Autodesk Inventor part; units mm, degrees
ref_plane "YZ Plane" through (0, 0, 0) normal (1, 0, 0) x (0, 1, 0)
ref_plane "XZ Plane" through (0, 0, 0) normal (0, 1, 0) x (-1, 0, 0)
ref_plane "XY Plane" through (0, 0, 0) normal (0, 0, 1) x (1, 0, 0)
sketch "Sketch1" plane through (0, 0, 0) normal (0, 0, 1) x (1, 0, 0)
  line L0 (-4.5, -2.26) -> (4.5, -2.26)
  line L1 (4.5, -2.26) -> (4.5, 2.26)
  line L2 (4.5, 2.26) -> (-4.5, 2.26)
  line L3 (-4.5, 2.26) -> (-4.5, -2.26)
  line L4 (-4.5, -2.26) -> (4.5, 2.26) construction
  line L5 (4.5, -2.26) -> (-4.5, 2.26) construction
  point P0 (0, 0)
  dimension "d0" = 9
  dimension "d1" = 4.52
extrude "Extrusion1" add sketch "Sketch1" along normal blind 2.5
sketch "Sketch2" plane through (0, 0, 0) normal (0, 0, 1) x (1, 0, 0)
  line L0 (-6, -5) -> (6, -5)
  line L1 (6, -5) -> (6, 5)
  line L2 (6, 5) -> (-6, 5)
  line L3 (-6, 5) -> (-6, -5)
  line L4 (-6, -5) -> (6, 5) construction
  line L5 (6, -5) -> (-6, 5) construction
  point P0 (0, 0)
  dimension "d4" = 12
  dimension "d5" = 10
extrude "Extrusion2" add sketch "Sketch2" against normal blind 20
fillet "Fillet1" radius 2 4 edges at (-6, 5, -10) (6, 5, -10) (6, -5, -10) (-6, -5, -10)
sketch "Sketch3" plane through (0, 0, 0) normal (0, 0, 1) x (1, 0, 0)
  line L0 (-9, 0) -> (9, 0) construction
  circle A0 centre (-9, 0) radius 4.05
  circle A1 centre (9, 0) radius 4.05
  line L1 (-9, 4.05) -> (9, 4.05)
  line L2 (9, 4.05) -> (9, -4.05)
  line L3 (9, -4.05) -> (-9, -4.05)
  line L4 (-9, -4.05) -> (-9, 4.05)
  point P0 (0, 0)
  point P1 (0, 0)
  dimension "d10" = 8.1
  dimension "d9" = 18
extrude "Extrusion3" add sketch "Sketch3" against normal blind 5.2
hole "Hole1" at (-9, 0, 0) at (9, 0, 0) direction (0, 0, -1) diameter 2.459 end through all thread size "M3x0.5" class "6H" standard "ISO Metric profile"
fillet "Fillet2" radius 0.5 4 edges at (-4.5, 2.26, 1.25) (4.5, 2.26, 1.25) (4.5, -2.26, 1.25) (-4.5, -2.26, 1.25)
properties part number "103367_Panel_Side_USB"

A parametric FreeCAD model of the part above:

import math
import FreeCAD as App
import Part
import Sketcher
Q = App.Units.Quantity


def edges_at(feature, points):
    """Names of the edges that pass closest to the given points."""
    edges = feature.Shape.Edges
    near = lambda p: min(range(len(edges)), key=lambda i: edges[i].distToShape(Part.Vertex(*p))[0])
    return sorted({f"Edge{near(p) + 1}" for p in points})


def add_polygon(sketch, points):
    """Adds a closed chain of lines whose ends are joined by coincident constraints."""
    first, n = sketch.GeometryCount, len(points)
    for a, b in zip(points, points[1:] + points[:1]):
        sketch.addGeometry(Part.LineSegment(App.Vector(*a, 0), App.Vector(*b, 0)), False)
    for i in range(n):
        sketch.addConstraint(Sketcher.Constraint("Coincident", first + i, 2, first + (i + 1) % n, 1))

doc = App.newDocument("Part")
body = doc.addObject("PartDesign::Body", "Body")

sketch1 = doc.addObject("Sketcher::SketchObject", "Sketch")
body.addObject(sketch1)
sketch1.AttachmentSupport = (doc.XY_Plane, [""])
sketch1.MapMode = "FlatFace"
add_polygon(sketch1, [(-4.5, 2.26), (-4.5, -2.26), (4.5, -2.26), (4.5, 2.26)])
sketch1.addConstraint([
    Sketcher.Constraint("Vertical", 0),
    Sketcher.Constraint("Horizontal", 1),
    Sketcher.Constraint("Vertical", 2),
    Sketcher.Constraint("Horizontal", 3),
    Sketcher.Constraint("Symmetric", 0, 2, 2, 2, -1, 1),
    Sketcher.Constraint("DistanceX", 1, 1, 1, 2, Q("9 mm")),
    Sketcher.Constraint("DistanceY", 0, 2, 0, 1, Q("4.52 mm")),
])
pad1 = doc.addObject("PartDesign::Pad", "Pad")
body.addObject(pad1)
pad1.Profile = sketch1
pad1.Length = 2.5

sketch2 = doc.addObject("Sketcher::SketchObject", "Sketch001")
body.addObject(sketch2)
sketch2.AttachmentSupport = (doc.XY_Plane, [""])
sketch2.MapMode = "FlatFace"
add_polygon(sketch2, [(-6, 5), (-6, -5), (6, -5), (6, 5)])
sketch2.addConstraint([
    Sketcher.Constraint("Vertical", 0),
    Sketcher.Constraint("Horizontal", 1),
    Sketcher.Constraint("Vertical", 2),
    Sketcher.Constraint("Horizontal", 3),
    Sketcher.Constraint("Symmetric", 0, 2, 2, 2, -1, 1),
    Sketcher.Constraint("DistanceX", 1, 1, 1, 2, Q("12 mm")),
    Sketcher.Constraint("DistanceY", 0, 2, 0, 1, Q("10 mm")),
])
pad2 = doc.addObject("PartDesign::Pad", "Pad001")
body.addObject(pad2)
pad2.Profile = sketch2
pad2.Length = 20
pad2.Reversed = True
doc.recompute()

fillet = doc.addObject("PartDesign::Fillet", "Fillet")
body.addObject(fillet)
fillet.Base = (pad2, edges_at(pad2, [
    (-6, 5, -10),
    (6, 5, -10),
    (6, -5, -10),
    (-6, -5, -10),
]))
fillet.Radius = 2

sketch3 = doc.addObject("Sketcher::SketchObject", "Sketch002")
body.addObject(sketch3)
sketch3.AttachmentSupport = (doc.XY_Plane, [""])
sketch3.MapMode = "FlatFace"
sketch3.addGeometry([
    Part.LineSegment(App.Vector(-9, -4.05, 0), App.Vector(9, -4.05, 0)),
    Part.ArcOfCircle(Part.Circle(App.Vector(9, 0, 0), App.Vector(0, 0, 1), 4.05), math.radians(-90), math.radians(90)),
    Part.LineSegment(App.Vector(9, 4.05, 0), App.Vector(-9, 4.05, 0)),
    Part.ArcOfCircle(Part.Circle(App.Vector(-9, 0, 0), App.Vector(0, 0, 1), 4.05), math.radians(90), math.radians(270)),
], False)
sketch3.addConstraint([
    Sketcher.Constraint("Tangent", 0, 2, 1, 1),
    Sketcher.Constraint("Tangent", 1, 2, 2, 1),
    Sketcher.Constraint("Tangent", 2, 2, 3, 1),
    Sketcher.Constraint("Tangent", 3, 2, 0, 1),
    Sketcher.Constraint("Horizontal", 0),
    Sketcher.Constraint("Horizontal", 2),
    Sketcher.Constraint("Symmetric", 1, 3, 3, 3, -1, 1),
    Sketcher.Constraint("DistanceX", 0, 1, 0, 2, Q("18 mm")),
    Sketcher.Constraint("Radius", 1, Q("4.05 mm")),
])
pad3 = doc.addObject("PartDesign::Pad", "Pad002")
body.addObject(pad3)
pad3.Profile = sketch3
pad3.Length = 5.2
pad3.Reversed = True

sketch4 = doc.addObject("Sketcher::SketchObject", "Sketch003")
body.addObject(sketch4)
sketch4.AttachmentSupport = (doc.XY_Plane, [""])
sketch4.MapMode = "FlatFace"
sketch4.addGeometry([
    Part.Circle(App.Vector(-9, 0, 0), App.Vector(0, 0, 1), 1.2295),
    Part.Circle(App.Vector(9, 0, 0), App.Vector(0, 0, 1), 1.2295),
], False)
sketch4.addConstraint([
    Sketcher.Constraint("Equal", 0, 1),
    Sketcher.Constraint("Symmetric", 0, 3, 1, 3, -1, 1),
    Sketcher.Constraint("PointOnObject", 0, 3, -1),
    Sketcher.Constraint("Diameter", 0, Q("2.459 mm")),
    Sketcher.Constraint("DistanceX", 0, 3, -1, 1, Q("9 mm")),
])
doc.recompute()
hole = doc.addObject("PartDesign::Hole", "Hole")
body.addObject(hole)
hole.Profile = sketch4
hole.ThreadType = "None"
hole.Diameter = 2.459
hole.DepthType = "ThroughAll"
doc.recompute()

fillet2 = doc.addObject("PartDesign::Fillet", "Fillet001")
body.addObject(fillet2)
fillet2.Base = (hole, edges_at(hole, [
    (-4.5, 2.26, 1.25),
    (4.5, 2.26, 1.25),
    (4.5, -2.26, 1.25),
    (-4.5, -2.26, 1.25),
]))
fillet2.Radius = 0.5

doc.recompute()
